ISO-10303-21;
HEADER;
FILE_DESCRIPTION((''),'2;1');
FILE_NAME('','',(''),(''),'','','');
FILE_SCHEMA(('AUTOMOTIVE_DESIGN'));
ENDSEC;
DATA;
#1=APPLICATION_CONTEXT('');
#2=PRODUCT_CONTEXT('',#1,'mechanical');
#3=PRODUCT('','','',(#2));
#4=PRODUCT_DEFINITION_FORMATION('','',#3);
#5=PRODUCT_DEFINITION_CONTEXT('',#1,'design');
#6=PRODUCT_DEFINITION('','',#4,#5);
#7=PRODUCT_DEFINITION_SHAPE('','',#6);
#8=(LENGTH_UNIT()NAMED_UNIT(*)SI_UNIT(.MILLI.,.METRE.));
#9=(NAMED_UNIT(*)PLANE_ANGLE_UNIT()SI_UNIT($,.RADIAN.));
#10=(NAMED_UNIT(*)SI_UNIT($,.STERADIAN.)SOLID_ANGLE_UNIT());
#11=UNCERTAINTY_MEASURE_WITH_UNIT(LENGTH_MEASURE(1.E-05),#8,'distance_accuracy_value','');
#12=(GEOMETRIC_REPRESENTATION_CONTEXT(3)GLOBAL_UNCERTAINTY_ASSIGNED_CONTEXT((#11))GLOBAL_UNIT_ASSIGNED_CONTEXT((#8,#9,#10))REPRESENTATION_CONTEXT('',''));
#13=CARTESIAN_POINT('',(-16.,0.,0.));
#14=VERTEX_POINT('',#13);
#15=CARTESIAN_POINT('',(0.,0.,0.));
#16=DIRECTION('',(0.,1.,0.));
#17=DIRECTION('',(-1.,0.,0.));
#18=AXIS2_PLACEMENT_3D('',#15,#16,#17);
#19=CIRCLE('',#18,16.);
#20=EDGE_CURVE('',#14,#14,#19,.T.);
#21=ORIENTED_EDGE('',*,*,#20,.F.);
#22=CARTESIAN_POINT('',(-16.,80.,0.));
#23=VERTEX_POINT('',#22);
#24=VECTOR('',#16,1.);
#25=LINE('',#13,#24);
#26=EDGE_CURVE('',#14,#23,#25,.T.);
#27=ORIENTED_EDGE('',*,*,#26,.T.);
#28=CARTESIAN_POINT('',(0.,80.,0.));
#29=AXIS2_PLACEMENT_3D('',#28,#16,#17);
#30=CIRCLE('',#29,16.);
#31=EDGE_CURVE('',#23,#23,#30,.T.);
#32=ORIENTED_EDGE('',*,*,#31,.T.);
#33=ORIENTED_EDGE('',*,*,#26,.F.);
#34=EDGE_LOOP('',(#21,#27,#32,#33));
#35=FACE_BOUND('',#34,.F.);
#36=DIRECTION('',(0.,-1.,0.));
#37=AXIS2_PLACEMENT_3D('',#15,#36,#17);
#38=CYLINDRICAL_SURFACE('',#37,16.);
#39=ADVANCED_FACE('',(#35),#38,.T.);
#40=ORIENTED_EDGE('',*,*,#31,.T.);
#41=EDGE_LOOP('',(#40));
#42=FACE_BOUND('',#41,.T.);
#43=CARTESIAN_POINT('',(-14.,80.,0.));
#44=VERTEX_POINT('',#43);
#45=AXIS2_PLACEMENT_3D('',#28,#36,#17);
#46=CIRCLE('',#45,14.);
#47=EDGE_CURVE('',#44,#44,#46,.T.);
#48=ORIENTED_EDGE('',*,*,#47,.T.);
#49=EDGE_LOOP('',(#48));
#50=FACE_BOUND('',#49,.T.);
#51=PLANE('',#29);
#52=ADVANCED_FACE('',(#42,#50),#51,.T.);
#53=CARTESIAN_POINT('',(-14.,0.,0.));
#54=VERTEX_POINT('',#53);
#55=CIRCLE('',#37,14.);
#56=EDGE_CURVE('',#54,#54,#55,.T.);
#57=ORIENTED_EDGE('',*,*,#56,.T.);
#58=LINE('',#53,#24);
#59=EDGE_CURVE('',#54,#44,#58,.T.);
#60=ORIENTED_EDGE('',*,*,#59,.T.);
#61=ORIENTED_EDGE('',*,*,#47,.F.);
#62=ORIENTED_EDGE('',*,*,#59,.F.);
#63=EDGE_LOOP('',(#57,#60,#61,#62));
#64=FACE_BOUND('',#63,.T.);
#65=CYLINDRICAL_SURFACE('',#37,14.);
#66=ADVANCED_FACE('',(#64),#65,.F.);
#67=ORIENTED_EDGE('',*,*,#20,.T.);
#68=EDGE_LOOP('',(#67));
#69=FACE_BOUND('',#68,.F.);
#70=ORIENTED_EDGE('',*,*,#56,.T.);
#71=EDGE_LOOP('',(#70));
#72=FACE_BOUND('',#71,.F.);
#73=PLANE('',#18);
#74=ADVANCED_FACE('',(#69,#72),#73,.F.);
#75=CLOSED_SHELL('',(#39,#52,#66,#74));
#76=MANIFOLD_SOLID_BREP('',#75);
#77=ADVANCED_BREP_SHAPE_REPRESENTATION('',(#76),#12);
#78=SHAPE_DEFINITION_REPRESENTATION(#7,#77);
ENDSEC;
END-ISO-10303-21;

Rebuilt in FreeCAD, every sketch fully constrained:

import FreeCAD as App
import Part
import Sketcher


def faces_at(feature, points):
    """Names of the faces that lie closest to the given points."""
    faces = feature.Shape.Faces
    near = lambda p: min(range(len(faces)), key=lambda i: faces[i].distToShape(Part.Vertex(*p))[0])
    return sorted({f"Face{near(p) + 1}" for p in points})

doc = App.newDocument("Part")
body = doc.addObject("PartDesign::Body", "Body")

# Sketch on XZ plane
sketch1 = body.newObject("Sketcher::SketchObject", "Sketch")
sketch1.AttachmentSupport = (doc.getObject("XZ_Plane"), [""])
sketch1.MapMode = "FlatFace"
sketch1.addGeometry(Part.Circle(App.Vector(0, 0, 0), App.Vector(0, 0, 1), 16), False)
sketch1.addConstraint(Sketcher.Constraint("Coincident", 0, 3, -1, 1))
sketch1.addConstraint(Sketcher.Constraint("Diameter", 0, 32.0))
pad1 = body.newObject("PartDesign::Pad", "Pad")
pad1.Profile = sketch1
pad1.Length = 80
pad1.Reversed = True
doc.recompute()

thickness = body.newObject("PartDesign::Thickness", "Thickness")
thickness.Base = (pad1, faces_at(pad1, [(-4.722, 0, 2.478), (-4.722, 80, 2.478)]))
thickness.Value = 2
thickness.Reversed = True
thickness.Join = "Intersection"

doc.recompute()
